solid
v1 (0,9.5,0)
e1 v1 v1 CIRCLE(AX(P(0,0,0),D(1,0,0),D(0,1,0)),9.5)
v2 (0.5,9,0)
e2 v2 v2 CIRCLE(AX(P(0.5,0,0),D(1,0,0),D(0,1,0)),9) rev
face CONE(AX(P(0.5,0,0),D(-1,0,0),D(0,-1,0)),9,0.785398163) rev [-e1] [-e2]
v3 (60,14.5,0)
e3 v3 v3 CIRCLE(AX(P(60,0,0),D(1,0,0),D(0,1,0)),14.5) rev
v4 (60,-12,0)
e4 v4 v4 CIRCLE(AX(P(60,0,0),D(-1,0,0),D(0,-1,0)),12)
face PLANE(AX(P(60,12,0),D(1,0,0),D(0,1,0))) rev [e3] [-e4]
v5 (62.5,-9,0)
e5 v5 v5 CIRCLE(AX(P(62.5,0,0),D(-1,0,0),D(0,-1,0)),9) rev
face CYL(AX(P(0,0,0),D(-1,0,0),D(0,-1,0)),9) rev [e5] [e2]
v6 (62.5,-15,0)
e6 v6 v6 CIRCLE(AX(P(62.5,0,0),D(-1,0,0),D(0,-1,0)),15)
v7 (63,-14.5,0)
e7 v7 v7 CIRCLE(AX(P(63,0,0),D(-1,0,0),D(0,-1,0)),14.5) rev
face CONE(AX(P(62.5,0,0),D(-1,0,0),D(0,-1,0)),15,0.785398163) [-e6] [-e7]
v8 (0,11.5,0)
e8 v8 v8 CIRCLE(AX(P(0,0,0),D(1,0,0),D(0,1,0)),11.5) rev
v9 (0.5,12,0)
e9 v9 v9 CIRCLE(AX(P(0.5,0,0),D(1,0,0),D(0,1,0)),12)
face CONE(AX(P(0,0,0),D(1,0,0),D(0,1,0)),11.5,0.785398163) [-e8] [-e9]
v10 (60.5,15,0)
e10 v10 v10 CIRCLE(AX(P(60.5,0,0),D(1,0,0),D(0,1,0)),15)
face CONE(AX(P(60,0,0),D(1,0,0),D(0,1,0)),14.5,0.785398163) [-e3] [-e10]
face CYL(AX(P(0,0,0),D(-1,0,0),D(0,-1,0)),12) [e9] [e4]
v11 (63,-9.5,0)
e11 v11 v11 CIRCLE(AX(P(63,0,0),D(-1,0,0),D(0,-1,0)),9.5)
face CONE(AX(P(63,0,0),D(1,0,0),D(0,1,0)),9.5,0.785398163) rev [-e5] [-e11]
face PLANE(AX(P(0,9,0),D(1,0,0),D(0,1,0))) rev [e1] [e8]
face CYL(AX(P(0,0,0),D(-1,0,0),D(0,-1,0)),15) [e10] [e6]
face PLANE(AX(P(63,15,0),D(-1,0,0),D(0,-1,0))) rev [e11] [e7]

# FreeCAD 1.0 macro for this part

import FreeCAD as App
import Part
import Sketcher


def edges_at(feature, points):
    """Names of the edges that pass closest to the given points."""
    edges = feature.Shape.Edges
    near = lambda p: min(range(len(edges)), key=lambda i: edges[i].distToShape(Part.Vertex(*p))[0])
    return sorted({f"Edge{near(p) + 1}" for p in points})

doc = App.newDocument("Part")
body = doc.addObject("PartDesign::Body", "Body")

sketch1 = doc.addObject("Sketcher::SketchObject", "Sketch")
body.addObject(sketch1)
sketch1.AttachmentSupport = (doc.XY_Plane, [""])
sketch1.MapMode = "FlatFace"
sketch1.addGeometry([
    Part.LineSegment(App.Vector(0, 12, 0), App.Vector(0, 9, 0)),
    Part.LineSegment(App.Vector(0, 9, 0), App.Vector(63, 9, 0)),
    Part.LineSegment(App.Vector(63, 9, 0), App.Vector(63, 15, 0)),
    Part.LineSegment(App.Vector(63, 15, 0), App.Vector(60, 15, 0)),
    Part.LineSegment(App.Vector(60, 15, 0), App.Vector(60, 12, 0)),
    Part.LineSegment(App.Vector(60, 12, 0), App.Vector(0, 12, 0)),
], False)
sketch1.addConstraint([
    Sketcher.Constraint("Coincident", 0, 2, 1, 1),
    Sketcher.Constraint("Coincident", 1, 2, 2, 1),
    Sketcher.Constraint("Coincident", 2, 2, 3, 1),
    Sketcher.Constraint("Coincident", 3, 2, 4, 1),
    Sketcher.Constraint("Coincident", 4, 2, 5, 1),
    Sketcher.Constraint("Coincident", 5, 2, 0, 1),
    Sketcher.Constraint("Vertical", 0),
    Sketcher.Constraint("Horizontal", 1),
    Sketcher.Constraint("Vertical", 2),
    Sketcher.Constraint("Horizontal", 3),
    Sketcher.Constraint("Vertical", 4),
    Sketcher.Constraint("Horizontal", 5),
    Sketcher.Constraint("PointOnObject", 0, 2, -2),
    Sketcher.Constraint("Equal", 3, 0),
    Sketcher.Constraint("Equal", 0, 4),
    Sketcher.Constraint("DistanceX", 1, 1, 1, 2, 63.0),
    Sketcher.Constraint("DistanceX", 3, 2, 3, 1, 3.0),
    Sketcher.Constraint("DistanceY", -1, 1, 0, 2, 9.0),
])
revolution = doc.addObject("PartDesign::Revolution", "Revolution")
body.addObject(revolution)
revolution.Profile = sketch1
revolution.ReferenceAxis = (sketch1, ["H_Axis"])
revolution.Angle = 360
doc.recompute()

chamfer = doc.addObject("PartDesign::Chamfer", "Chamfer")
body.addObject(chamfer)
chamfer.Base = (revolution, edges_at(revolution, [
    (60, 15, 0),
    (0, 12, 0),
    (0, 9, 0),
    (63, 9, 0),
    (63, 15, 0),
]))
chamfer.Size = 0.5

doc.recompute()
